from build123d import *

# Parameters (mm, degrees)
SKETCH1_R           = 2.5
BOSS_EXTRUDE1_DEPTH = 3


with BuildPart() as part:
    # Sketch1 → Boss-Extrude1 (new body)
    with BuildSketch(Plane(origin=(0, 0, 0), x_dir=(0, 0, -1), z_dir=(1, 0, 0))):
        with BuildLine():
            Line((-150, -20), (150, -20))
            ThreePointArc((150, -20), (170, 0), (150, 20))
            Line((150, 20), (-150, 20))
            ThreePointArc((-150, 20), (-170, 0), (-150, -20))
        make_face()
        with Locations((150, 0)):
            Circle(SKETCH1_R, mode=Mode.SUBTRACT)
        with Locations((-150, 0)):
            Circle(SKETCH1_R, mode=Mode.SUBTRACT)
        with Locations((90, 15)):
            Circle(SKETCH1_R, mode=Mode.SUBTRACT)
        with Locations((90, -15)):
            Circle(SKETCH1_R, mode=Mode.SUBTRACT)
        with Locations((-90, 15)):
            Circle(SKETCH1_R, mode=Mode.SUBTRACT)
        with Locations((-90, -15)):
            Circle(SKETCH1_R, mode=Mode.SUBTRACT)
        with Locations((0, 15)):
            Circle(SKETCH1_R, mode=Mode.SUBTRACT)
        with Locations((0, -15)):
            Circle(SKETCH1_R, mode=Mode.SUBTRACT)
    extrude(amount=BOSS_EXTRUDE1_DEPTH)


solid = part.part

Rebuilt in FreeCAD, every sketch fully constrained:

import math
import FreeCAD as App
import Part
import Sketcher

V = App.Vector

doc = App.newDocument("Part")
body = doc.addObject("PartDesign::Body", "Body")

sketch1 = body.newObject("Sketcher::SketchObject", "Sketch")
sketch1.AttachmentSupport = (doc.getObject("YZ_Plane"), [""])
sketch1.MapMode = "FlatFace"
sketch1.addGeometry(Part.LineSegment(V(-20, 150, 0), V(-20, -150, 0)), False)
sketch1.addGeometry(Part.ArcOfCircle(Part.Circle(V(0, -150, 0), V(0, 0, 1), 20), math.radians(180), math.radians(360)), False)
sketch1.addGeometry(Part.LineSegment(V(20, -150, 0), V(20, 150, 0)), False)
sketch1.addGeometry(Part.ArcOfCircle(Part.Circle(V(0, 150, 0), V(0, 0, 1), 20), math.radians(0), math.radians(180)), False)
sketch1.addGeometry(Part.Circle(V(-15, 90, 0), V(0, 0, 1), 2.5), False)
sketch1.addGeometry(Part.Circle(V(-15, 0, 0), V(0, 0, 1), 2.5), False)
sketch1.addGeometry(Part.Circle(V(-15, -90, 0), V(0, 0, 1), 2.5), False)
sketch1.addGeometry(Part.Circle(V(0, 150, 0), V(0, 0, 1), 2.5), False)
sketch1.addGeometry(Part.Circle(V(15, 90, 0), V(0, 0, 1), 2.5), False)
sketch1.addGeometry(Part.Circle(V(0, -150, 0), V(0, 0, 1), 2.5), False)
sketch1.addGeometry(Part.Circle(V(15, 0, 0), V(0, 0, 1), 2.5), False)
sketch1.addGeometry(Part.Circle(V(15, -90, 0), V(0, 0, 1), 2.5), False)
sketch1.addConstraint(Sketcher.Constraint("Tangent", 0, 2, 1, 1))
sketch1.addConstraint(Sketcher.Constraint("Tangent", 1, 2, 2, 1))
sketch1.addConstraint(Sketcher.Constraint("Tangent", 2, 2, 3, 1))
sketch1.addConstraint(Sketcher.Constraint("Tangent", 3, 2, 0, 1))
sketch1.addConstraint(Sketcher.Constraint("Vertical", 0))
sketch1.addConstraint(Sketcher.Constraint("Vertical", 2))
sketch1.addConstraint(Sketcher.Constraint("Coincident", 7, 3, 3, 3))
sketch1.addConstraint(Sketcher.Constraint("Coincident", 9, 3, 1, 3))
sketch1.addConstraint(Sketcher.Constraint("Equal", 4, 5))
sketch1.addConstraint(Sketcher.Constraint("Equal", 5, 6))
sketch1.addConstraint(Sketcher.Constraint("Equal", 6, 7))
sketch1.addConstraint(Sketcher.Constraint("Equal", 7, 8))
sketch1.addConstraint(Sketcher.Constraint("Equal", 8, 9))
sketch1.addConstraint(Sketcher.Constraint("Equal", 9, 10))
sketch1.addConstraint(Sketcher.Constraint("Equal", 10, 11))
sketch1.addConstraint(Sketcher.Constraint("Symmetric", 1, 3, 3, 3, -1, 1))
sketch1.addConstraint(Sketcher.Constraint("Symmetric", 6, 3, 8, 3, -1, 1))
sketch1.addConstraint(Sketcher.Constraint("Symmetric", 5, 3, 10, 3, -1, 1))
sketch1.addConstraint(Sketcher.Constraint("Symmetric", 4, 3, 11, 3, -1, 1))
sketch1.addConstraint(Sketcher.Constraint("Symmetric", 4, 3, 8, 3, -2))
sketch1.addConstraint(Sketcher.Constraint("PointOnObject", 5, 3, -1))
sketch1.addConstraint(Sketcher.Constraint("Vertical", 4, 3, 5, 3))
sketch1.addConstraint(Sketcher.Constraint("Diameter", 4, 5.0))
sketch1.addConstraint(Sketcher.Constraint("Radius", 1, 20.0))
sketch1.addConstraint(Sketcher.Constraint("DistanceY", 0, 2, 0, 1, 300.0))
sketch1.addConstraint(Sketcher.Constraint("DistanceX", 4, 3, -1, 1, 15.0))
sketch1.addConstraint(Sketcher.Constraint("DistanceY", -1, 1, 4, 3, 90.0))
pad1 = body.newObject("PartDesign::Pad", "Pad")
pad1.Profile = sketch1
pad1.Length = 3

doc.recompute()
